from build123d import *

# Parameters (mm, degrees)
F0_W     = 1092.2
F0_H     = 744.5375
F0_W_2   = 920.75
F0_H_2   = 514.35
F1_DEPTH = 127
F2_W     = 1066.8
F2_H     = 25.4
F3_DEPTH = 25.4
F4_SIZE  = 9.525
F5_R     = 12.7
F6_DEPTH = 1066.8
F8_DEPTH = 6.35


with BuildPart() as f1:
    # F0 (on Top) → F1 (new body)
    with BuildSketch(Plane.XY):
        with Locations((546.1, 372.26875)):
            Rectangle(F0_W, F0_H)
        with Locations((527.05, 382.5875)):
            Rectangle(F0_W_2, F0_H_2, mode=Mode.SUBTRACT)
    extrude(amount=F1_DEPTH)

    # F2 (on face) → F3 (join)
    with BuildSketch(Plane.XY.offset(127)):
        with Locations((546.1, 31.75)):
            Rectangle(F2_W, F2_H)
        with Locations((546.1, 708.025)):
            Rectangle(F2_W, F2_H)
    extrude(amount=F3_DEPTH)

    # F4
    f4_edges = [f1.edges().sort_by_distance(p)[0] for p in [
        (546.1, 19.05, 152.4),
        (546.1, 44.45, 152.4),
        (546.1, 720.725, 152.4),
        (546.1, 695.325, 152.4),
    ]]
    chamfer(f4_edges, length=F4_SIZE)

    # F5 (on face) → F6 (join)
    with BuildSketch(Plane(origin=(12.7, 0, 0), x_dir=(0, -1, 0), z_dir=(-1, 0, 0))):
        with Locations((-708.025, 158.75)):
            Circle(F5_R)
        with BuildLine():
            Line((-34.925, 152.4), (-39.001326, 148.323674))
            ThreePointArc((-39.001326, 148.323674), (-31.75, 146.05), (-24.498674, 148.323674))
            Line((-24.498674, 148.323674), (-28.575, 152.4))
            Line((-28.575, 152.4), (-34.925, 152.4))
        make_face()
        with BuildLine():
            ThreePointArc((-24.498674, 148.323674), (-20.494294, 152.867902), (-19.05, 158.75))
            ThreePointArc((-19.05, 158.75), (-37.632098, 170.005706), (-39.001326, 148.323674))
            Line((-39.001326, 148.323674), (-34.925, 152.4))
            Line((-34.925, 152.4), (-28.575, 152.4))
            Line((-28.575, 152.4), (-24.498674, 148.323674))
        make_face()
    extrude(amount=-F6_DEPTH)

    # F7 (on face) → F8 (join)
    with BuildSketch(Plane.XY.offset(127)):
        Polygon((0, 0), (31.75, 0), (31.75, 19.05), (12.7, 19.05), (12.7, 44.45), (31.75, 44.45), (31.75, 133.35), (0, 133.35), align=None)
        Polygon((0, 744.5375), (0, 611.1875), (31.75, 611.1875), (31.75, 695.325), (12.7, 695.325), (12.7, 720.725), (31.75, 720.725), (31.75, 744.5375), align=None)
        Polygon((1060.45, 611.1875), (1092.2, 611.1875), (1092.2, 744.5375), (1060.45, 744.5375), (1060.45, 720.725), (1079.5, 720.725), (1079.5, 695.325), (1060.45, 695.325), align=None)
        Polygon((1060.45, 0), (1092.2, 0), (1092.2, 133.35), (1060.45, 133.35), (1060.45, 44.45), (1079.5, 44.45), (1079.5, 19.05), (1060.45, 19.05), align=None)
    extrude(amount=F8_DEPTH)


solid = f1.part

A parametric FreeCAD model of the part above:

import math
import FreeCAD as App
import Part
import Sketcher
Q = App.Units.Quantity


def edges_at(feature, points):
    """Names of the edges that pass closest to the given points."""
    edges = feature.Shape.Edges
    near = lambda p: min(range(len(edges)), key=lambda i: edges[i].distToShape(Part.Vertex(*p))[0])
    return sorted({f"Edge{near(p) + 1}" for p in points})

doc = App.newDocument("Part")
body = doc.addObject("PartDesign::Body", "Body")

# Sketch on XY plane
sketch1 = doc.addObject("Sketcher::SketchObject", "Sketch")
body.addObject(sketch1)
sketch1.AttachmentSupport = (doc.XY_Plane, [""])
sketch1.MapMode = "FlatFace"
sketch1.addGeometry([
    Part.LineSegment(App.Vector(0, 744.5375, 0), App.Vector(0, 0, 0)),  # 0
    Part.LineSegment(App.Vector(0, 0, 0), App.Vector(1092.2, 0, 0)),  # 1
    Part.LineSegment(App.Vector(1092.2, 0, 0), App.Vector(1092.2, 744.5375, 0)),  # 2
    Part.LineSegment(App.Vector(1092.2, 744.5375, 0), App.Vector(0, 744.5375, 0)),  # 3
    Part.LineSegment(App.Vector(987.425, 125.4125, 0), App.Vector(66.675, 125.4125, 0)),  # 4
    Part.LineSegment(App.Vector(66.675, 125.4125, 0), App.Vector(66.675, 639.7625, 0)),  # 5
    Part.LineSegment(App.Vector(66.675, 639.7625, 0), App.Vector(987.425, 639.7625, 0)),  # 6
    Part.LineSegment(App.Vector(987.425, 639.7625, 0), App.Vector(987.425, 125.4125, 0)),  # 7
], False)
sketch1.addConstraint([
    Sketcher.Constraint("Coincident", 0, 2, 1, 1),
    Sketcher.Constraint("Coincident", 1, 2, 2, 1),
    Sketcher.Constraint("Coincident", 2, 2, 3, 1),
    Sketcher.Constraint("Coincident", 3, 2, 0, 1),
    Sketcher.Constraint("Coincident", 4, 2, 5, 1),
    Sketcher.Constraint("Coincident", 5, 2, 6, 1),
    Sketcher.Constraint("Coincident", 6, 2, 7, 1),
    Sketcher.Constraint("Coincident", 7, 2, 4, 1),
    Sketcher.Constraint("Vertical", 0),
    Sketcher.Constraint("Horizontal", 1),
    Sketcher.Constraint("Vertical", 2),
    Sketcher.Constraint("Horizontal", 3),
    Sketcher.Constraint("Horizontal", 4),
    Sketcher.Constraint("Vertical", 5),
    Sketcher.Constraint("Horizontal", 6),
    Sketcher.Constraint("Vertical", 7),
    Sketcher.Constraint("Coincident", 0, 2, -1, 1),
    Sketcher.Constraint("DistanceX", 1, 1, 1, 2, Q("43 in")),
    Sketcher.Constraint("DistanceX", 4, 2, 4, 1, Q("36.25 in")),
    Sketcher.Constraint("DistanceY", 5, 1, 5, 2, Q("20.25 in")),
    Sketcher.Constraint("DistanceY", 0, 2, 0, 1, Q("29.3125 in")),
    Sketcher.Constraint("DistanceX", -1, 1, 4, 2, Q("2.625 in")),
    Sketcher.Constraint("DistanceY", -1, 1, 4, 2, Q("4.9375 in")),
])
pad1 = doc.addObject("PartDesign::Pad", "Pad")
body.addObject(pad1)
pad1.Profile = sketch1
pad1.Length = Q("5 in")

# Sketch on XY plane
sketch2 = doc.addObject("Sketcher::SketchObject", "Sketch001")
body.addObject(sketch2)
sketch2.AttachmentSupport = (doc.XY_Plane, [""])
sketch2.MapMode = "FlatFace"
sketch2.AttachmentOffset = App.Placement(App.Vector(0, 0, 5 * 25.4), App.Rotation())
sketch2.addGeometry([
    Part.LineSegment(App.Vector(12.7, 44.45, 0), App.Vector(12.7, 19.05, 0)),  # 0
    Part.LineSegment(App.Vector(12.7, 19.05, 0), App.Vector(1079.5, 19.05, 0)),  # 1
    Part.LineSegment(App.Vector(1079.5, 19.05, 0), App.Vector(1079.5, 44.45, 0)),  # 2
    Part.LineSegment(App.Vector(1079.5, 44.45, 0), App.Vector(12.7, 44.45, 0)),  # 3
    Part.LineSegment(App.Vector(12.7, 720.725, 0), App.Vector(12.7, 695.325, 0)),  # 4
    Part.LineSegment(App.Vector(12.7, 695.325, 0), App.Vector(1079.5, 695.325, 0)),  # 5
    Part.LineSegment(App.Vector(1079.5, 695.325, 0), App.Vector(1079.5, 720.725, 0)),  # 6
    Part.LineSegment(App.Vector(1079.5, 720.725, 0), App.Vector(12.7, 720.725, 0)),  # 7
], False)
sketch2.addConstraint([
    Sketcher.Constraint("Coincident", 0, 2, 1, 1),
    Sketcher.Constraint("Coincident", 1, 2, 2, 1),
    Sketcher.Constraint("Coincident", 2, 2, 3, 1),
    Sketcher.Constraint("Coincident", 3, 2, 0, 1),
    Sketcher.Constraint("Coincident", 4, 2, 5, 1),
    Sketcher.Constraint("Coincident", 5, 2, 6, 1),
    Sketcher.Constraint("Coincident", 6, 2, 7, 1),
    Sketcher.Constraint("Coincident", 7, 2, 4, 1),
    Sketcher.Constraint("Vertical", 0),
    Sketcher.Constraint("Horizontal", 1),
    Sketcher.Constraint("Vertical", 2),
    Sketcher.Constraint("Horizontal", 3),
    Sketcher.Constraint("Vertical", 4),
    Sketcher.Constraint("Horizontal", 5),
    Sketcher.Constraint("Vertical", 6),
    Sketcher.Constraint("Horizontal", 7),
    Sketcher.Constraint("Vertical", 3, 2, 4, 2),
    Sketcher.Constraint("Vertical", 2, 2, 5, 2),
    Sketcher.Constraint("Equal", 2, 4),
    Sketcher.Constraint("DistanceX", 1, 1, 1, 2, Q("42 in")),
    Sketcher.Constraint("DistanceY", 0, 2, 0, 1, Q("1 in")),
    Sketcher.Constraint("DistanceX", -1, 1, 0, 2, Q("0.5 in")),
    Sketcher.Constraint("DistanceY", -1, 1, 0, 2, Q("0.75 in")),
    Sketcher.Constraint("DistanceY", -1, 1, 4, 2, Q("27.375 in")),
])
pad2 = doc.addObject("PartDesign::Pad", "Pad001")
body.addObject(pad2)
pad2.Profile = sketch2
pad2.Length = Q("1 in")
doc.recompute()

chamfer = doc.addObject("PartDesign::Chamfer", "Chamfer")
body.addObject(chamfer)
chamfer.Base = (pad2, edges_at(pad2, [
    (546.1, 19.05, 152.4),
    (546.1, 44.45, 152.4),
    (546.1, 720.725, 152.4),
    (546.1, 695.325, 152.4),
]))
chamfer.Size = Q("0.375 in")

# Sketch on YZ plane
sketch3 = doc.addObject("Sketcher::SketchObject", "Sketch002")
body.addObject(sketch3)
sketch3.AttachmentSupport = (doc.YZ_Plane, [""])
sketch3.MapMode = "FlatFace"
sketch3.AttachmentOffset = App.Placement(App.Vector(0, 0, 0.5 * 25.4), App.Rotation())
sketch3.addGeometry([
    Part.Circle(App.Vector(708.025, 158.75, 0), App.Vector(0, 0, 1), 12.7),
    Part.ArcOfCircle(Part.Circle(App.Vector(31.75, 158.750001, 0), App.Vector(0, 0, 1), 12.700001), math.radians(-124.817931), math.radians(-55.182069)),
    Part.ArcOfCircle(Part.Circle(App.Vector(31.750002, 158.750001, 0), App.Vector(0, 0, 1), 12.700002), math.radians(-179.999995), math.radians(-124.817938)),
    Part.ArcOfCircle(Part.Circle(App.Vector(31.75, 158.75, 0), App.Vector(0, 0, 1), 12.7), math.radians(-55.182067), math.radians(179.999999)),
], False)
sketch3.addConstraint([
    Sketcher.Constraint("Tangent", 1, 1, 2, 2),
    Sketcher.Constraint("Tangent", 2, 1, 3, 2),
    Sketcher.Constraint("Tangent", 3, 1, 1, 2),
    Sketcher.Constraint("Equal", 0, 1),
    Sketcher.Constraint("Horizontal", 0, 3, 1, 3),
    Sketcher.Constraint("Horizontal", 3, 3, 2, 1),
    Sketcher.Constraint("Horizontal", 1, 1, 3, 1),
    Sketcher.Constraint("Diameter", 0, Q("1 in")),
    Sketcher.Constraint("DistanceY", -1, 1, 0, 3, Q("6.25 in")),
    Sketcher.Constraint("DistanceX", -1, 1, 1, 3, Q("1.25 in")),
    Sketcher.Constraint("DistanceX", -1, 1, 0, 3, Q("27.875 in")),
    Sketcher.Constraint("DistanceX", 1, 1, 2, 3, Q("7.251328 mm")),
])
pad3 = doc.addObject("PartDesign::Pad", "Pad002")
body.addObject(pad3)
pad3.Profile = sketch3
pad3.Length = Q("42 in")

# Sketch on XY plane
sketch4 = doc.addObject("Sketcher::SketchObject", "Sketch003")
body.addObject(sketch4)
sketch4.AttachmentSupport = (doc.XY_Plane, [""])
sketch4.MapMode = "FlatFace"
sketch4.AttachmentOffset = App.Placement(App.Vector(0, 0, 5 * 25.4), App.Rotation())
sketch4.addGeometry([
    Part.LineSegment(App.Vector(0, 0, 0), App.Vector(31.75, 0, 0)),  # 0
    Part.LineSegment(App.Vector(31.75, 0, 0), App.Vector(31.75, 19.05, 0)),  # 1
    Part.LineSegment(App.Vector(31.75, 19.05, 0), App.Vector(12.7, 19.05, 0)),  # 2
    Part.LineSegment(App.Vector(12.7, 19.05, 0), App.Vector(12.7, 44.45, 0)),  # 3
    Part.LineSegment(App.Vector(12.7, 44.45, 0), App.Vector(31.75, 44.45, 0)),  # 4
    Part.LineSegment(App.Vector(31.75, 44.45, 0), App.Vector(31.75, 133.35, 0)),  # 5
    Part.LineSegment(App.Vector(31.75, 133.35, 0), App.Vector(0, 133.35, 0)),  # 6
    Part.LineSegment(App.Vector(0, 133.35, 0), App.Vector(0, 0, 0)),  # 7
    Part.LineSegment(App.Vector(0, 744.5375, 0), App.Vector(0, 611.1875, 0)),  # 8
    Part.LineSegment(App.Vector(0, 611.1875, 0), App.Vector(31.75, 611.1875, 0)),  # 9
    Part.LineSegment(App.Vector(31.75, 611.1875, 0), App.Vector(31.75, 695.325, 0)),  # 10
    Part.LineSegment(App.Vector(31.75, 695.325, 0), App.Vector(12.7, 695.325, 0)),  # 11
    Part.LineSegment(App.Vector(12.7, 695.325, 0), App.Vector(12.7, 720.725, 0)),  # 12
    Part.LineSegment(App.Vector(12.7, 720.725, 0), App.Vector(31.75, 720.725, 0)),  # 13
    Part.LineSegment(App.Vector(31.75, 720.725, 0), App.Vector(31.75, 744.5375, 0)),  # 14
    Part.LineSegment(App.Vector(31.75, 744.5375, 0), App.Vector(0, 744.5375, 0)),  # 15
    Part.LineSegment(App.Vector(1060.45, 611.1875, 0), App.Vector(1092.2, 611.1875, 0)),  # 16
    Part.LineSegment(App.Vector(1092.2, 611.1875, 0), App.Vector(1092.2, 744.5375, 0)),  # 17
    Part.LineSegment(App.Vector(1092.2, 744.5375, 0), App.Vector(1060.45, 744.5375, 0)),  # 18
    Part.LineSegment(App.Vector(1060.45, 744.5375, 0), App.Vector(1060.45, 720.725, 0)),  # 19
    Part.LineSegment(App.Vector(1060.45, 720.725, 0), App.Vector(1079.5, 720.725, 0)),  # 20
    Part.LineSegment(App.Vector(1079.5, 720.725, 0), App.Vector(1079.5, 695.325, 0)),  # 21
    Part.LineSegment(App.Vector(1079.5, 695.325, 0), App.Vector(1060.45, 695.325, 0)),  # 22
    Part.LineSegment(App.Vector(1060.45, 695.325, 0), App.Vector(1060.45, 611.1875, 0)),  # 23
    Part.LineSegment(App.Vector(1060.45, 0, 0), App.Vector(1092.2, 0, 0)),  # 24
    Part.LineSegment(App.Vector(1092.2, 0, 0), App.Vector(1092.2, 133.35, 0)),  # 25
    Part.LineSegment(App.Vector(1092.2, 133.35, 0), App.Vector(1060.45, 133.35, 0)),  # 26
    Part.LineSegment(App.Vector(1060.45, 133.35, 0), App.Vector(1060.45, 44.45, 0)),  # 27
    Part.LineSegment(App.Vector(1060.45, 44.45, 0), App.Vector(1079.5, 44.45, 0)),  # 28
    Part.LineSegment(App.Vector(1079.5, 44.45, 0), App.Vector(1079.5, 19.05, 0)),  # 29
    Part.LineSegment(App.Vector(1079.5, 19.05, 0), App.Vector(1060.45, 19.05, 0)),  # 30
    Part.LineSegment(App.Vector(1060.45, 19.05, 0), App.Vector(1060.45, 0, 0)),  # 31
], False)
sketch4.addConstraint([
    Sketcher.Constraint("Coincident", 0, 2, 1, 1),
    Sketcher.Constraint("Coincident", 1, 2, 2, 1),
    Sketcher.Constraint("Coincident", 2, 2, 3, 1),
    Sketcher.Constraint("Coincident", 3, 2, 4, 1),
    Sketcher.Constraint("Coincident", 4, 2, 5, 1),
    Sketcher.Constraint("Coincident", 5, 2, 6, 1),
    Sketcher.Constraint("Coincident", 6, 2, 7, 1),
    Sketcher.Constraint("Coincident", 7, 2, 0, 1),
    Sketcher.Constraint("Coincident", 8, 2, 9, 1),
    Sketcher.Constraint("Coincident", 9, 2, 10, 1),
    Sketcher.Constraint("Coincident", 10, 2, 11, 1),
    Sketcher.Constraint("Coincident", 11, 2, 12, 1),
    Sketcher.Constraint("Coincident", 12, 2, 13, 1),
    Sketcher.Constraint("Coincident", 13, 2, 14, 1),
    Sketcher.Constraint("Coincident", 14, 2, 15, 1),
    Sketcher.Constraint("Coincident", 15, 2, 8, 1),
    Sketcher.Constraint("Coincident", 16, 2, 17, 1),
    Sketcher.Constraint("Coincident", 17, 2, 18, 1),
    Sketcher.Constraint("Coincident", 18, 2, 19, 1),
    Sketcher.Constraint("Coincident", 19, 2, 20, 1),
    Sketcher.Constraint("Coincident", 20, 2, 21, 1),
    Sketcher.Constraint("Coincident", 21, 2, 22, 1),
    Sketcher.Constraint("Coincident", 22, 2, 23, 1),
    Sketcher.Constraint("Coincident", 23, 2, 16, 1),
    Sketcher.Constraint("Coincident", 24, 2, 25, 1),
    Sketcher.Constraint("Coincident", 25, 2, 26, 1),
    Sketcher.Constraint("Coincident", 26, 2, 27, 1),
    Sketcher.Constraint("Coincident", 27, 2, 28, 1),
    Sketcher.Constraint("Coincident", 28, 2, 29, 1),
    Sketcher.Constraint("Coincident", 29, 2, 30, 1),
    Sketcher.Constraint("Coincident", 30, 2, 31, 1),
    Sketcher.Constraint("Coincident", 31, 2, 24, 1),
    Sketcher.Constraint("Horizontal", 0),
    Sketcher.Constraint("Vertical", 1),
    Sketcher.Constraint("Horizontal", 2),
    Sketcher.Constraint("Vertical", 3),
    Sketcher.Constraint("Horizontal", 4),
    Sketcher.Constraint("Vertical", 5),
    Sketcher.Constraint("Horizontal", 6),
    Sketcher.Constraint("Vertical", 7),
    Sketcher.Constraint("Vertical", 8),
    Sketcher.Constraint("Horizontal", 9),
    Sketcher.Constraint("Vertical", 10),
    Sketcher.Constraint("Horizontal", 11),
    Sketcher.Constraint("Vertical", 12),
    Sketcher.Constraint("Horizontal", 13),
    Sketcher.Constraint("Vertical", 14),
    Sketcher.Constraint("Horizontal", 15),
    Sketcher.Constraint("Horizontal", 16),
    Sketcher.Constraint("Vertical", 17),
    Sketcher.Constraint("Horizontal", 18),
    Sketcher.Constraint("Vertical", 19),
    Sketcher.Constraint("Horizontal", 20),
    Sketcher.Constraint("Vertical", 21),
    Sketcher.Constraint("Horizontal", 22),
    Sketcher.Constraint("Vertical", 23),
    Sketcher.Constraint("Horizontal", 24),
    Sketcher.Constraint("Vertical", 25),
    Sketcher.Constraint("Horizontal", 26),
    Sketcher.Constraint("Vertical", 27),
    Sketcher.Constraint("Horizontal", 28),
    Sketcher.Constraint("Vertical", 29),
    Sketcher.Constraint("Horizontal", 30),
    Sketcher.Constraint("Vertical", 31),
    Sketcher.Constraint("Coincident", 7, 2, -1, 1),
    Sketcher.Constraint("PointOnObject", 8, 2, -2),
    Sketcher.Constraint("PointOnObject", 24, 2, -1),
    Sketcher.Constraint("Horizontal", 9, 2, 16, 2),
    Sketcher.Constraint("Horizontal", 15, 2, 17, 2),
    Sketcher.Constraint("Horizontal", 13, 2, 19, 2),
    Sketcher.Constraint("Horizontal", 11, 2, 21, 2),
    Sketcher.Constraint("Horizontal", 6, 2, 25, 2),
    Sketcher.Constraint("Horizontal", 4, 2, 27, 2),
    Sketcher.Constraint("Horizontal", 2, 2, 29, 2),
    Sketcher.Constraint("Vertical", 1, 2, 4, 2),
    Sketcher.Constraint("Vertical", 5, 2, 9, 2),
    Sketcher.Constraint("Vertical", 3, 2, 11, 2),
    Sketcher.Constraint("Vertical", 10, 2, 13, 2),
    Sketcher.Constraint("Vertical", 19, 2, 22, 2),
    Sketcher.Constraint("Vertical", 17, 2, 24, 2),
    Sketcher.Constraint("Vertical", 23, 2, 26, 2),
    Sketcher.Constraint("Vertical", 21, 2, 28, 2),
    Sketcher.Constraint("Vertical", 27, 2, 30, 2),
    Sketcher.Constraint("Equal", 15, 16),
    Sketcher.Constraint("Equal", 13, 20),
    Sketcher.Constraint("Equal", 30, 1),
    Sketcher.Constraint("Equal", 7, 8),
    Sketcher.Constraint("Equal", 3, 12),
    Sketcher.Constraint("DistanceY", 3, 1, 3, 2, Q("1 in")),
    Sketcher.Constraint("DistanceY", 5, 1, 5, 2, Q("3.5 in")),
    Sketcher.Constraint("DistanceX", -1, 1, 16, 2, Q("43 in")),
    Sketcher.Constraint("DistanceX", 0, 1, 0, 2, Q("1.25 in")),
    Sketcher.Constraint("DistanceX", 2, 2, 2, 1, Q("0.75 in")),
    Sketcher.Constraint("DistanceY", 10, 1, 10, 2, Q("3.3125 in")),
    Sketcher.Constraint("DistanceY", -1, 1, 8, 2, Q("24.0625 in")),
])
pad4 = doc.addObject("PartDesign::Pad", "Pad003")
body.addObject(pad4)
pad4.Profile = sketch4
pad4.Length = Q("0.25 in")

doc.recompute()
